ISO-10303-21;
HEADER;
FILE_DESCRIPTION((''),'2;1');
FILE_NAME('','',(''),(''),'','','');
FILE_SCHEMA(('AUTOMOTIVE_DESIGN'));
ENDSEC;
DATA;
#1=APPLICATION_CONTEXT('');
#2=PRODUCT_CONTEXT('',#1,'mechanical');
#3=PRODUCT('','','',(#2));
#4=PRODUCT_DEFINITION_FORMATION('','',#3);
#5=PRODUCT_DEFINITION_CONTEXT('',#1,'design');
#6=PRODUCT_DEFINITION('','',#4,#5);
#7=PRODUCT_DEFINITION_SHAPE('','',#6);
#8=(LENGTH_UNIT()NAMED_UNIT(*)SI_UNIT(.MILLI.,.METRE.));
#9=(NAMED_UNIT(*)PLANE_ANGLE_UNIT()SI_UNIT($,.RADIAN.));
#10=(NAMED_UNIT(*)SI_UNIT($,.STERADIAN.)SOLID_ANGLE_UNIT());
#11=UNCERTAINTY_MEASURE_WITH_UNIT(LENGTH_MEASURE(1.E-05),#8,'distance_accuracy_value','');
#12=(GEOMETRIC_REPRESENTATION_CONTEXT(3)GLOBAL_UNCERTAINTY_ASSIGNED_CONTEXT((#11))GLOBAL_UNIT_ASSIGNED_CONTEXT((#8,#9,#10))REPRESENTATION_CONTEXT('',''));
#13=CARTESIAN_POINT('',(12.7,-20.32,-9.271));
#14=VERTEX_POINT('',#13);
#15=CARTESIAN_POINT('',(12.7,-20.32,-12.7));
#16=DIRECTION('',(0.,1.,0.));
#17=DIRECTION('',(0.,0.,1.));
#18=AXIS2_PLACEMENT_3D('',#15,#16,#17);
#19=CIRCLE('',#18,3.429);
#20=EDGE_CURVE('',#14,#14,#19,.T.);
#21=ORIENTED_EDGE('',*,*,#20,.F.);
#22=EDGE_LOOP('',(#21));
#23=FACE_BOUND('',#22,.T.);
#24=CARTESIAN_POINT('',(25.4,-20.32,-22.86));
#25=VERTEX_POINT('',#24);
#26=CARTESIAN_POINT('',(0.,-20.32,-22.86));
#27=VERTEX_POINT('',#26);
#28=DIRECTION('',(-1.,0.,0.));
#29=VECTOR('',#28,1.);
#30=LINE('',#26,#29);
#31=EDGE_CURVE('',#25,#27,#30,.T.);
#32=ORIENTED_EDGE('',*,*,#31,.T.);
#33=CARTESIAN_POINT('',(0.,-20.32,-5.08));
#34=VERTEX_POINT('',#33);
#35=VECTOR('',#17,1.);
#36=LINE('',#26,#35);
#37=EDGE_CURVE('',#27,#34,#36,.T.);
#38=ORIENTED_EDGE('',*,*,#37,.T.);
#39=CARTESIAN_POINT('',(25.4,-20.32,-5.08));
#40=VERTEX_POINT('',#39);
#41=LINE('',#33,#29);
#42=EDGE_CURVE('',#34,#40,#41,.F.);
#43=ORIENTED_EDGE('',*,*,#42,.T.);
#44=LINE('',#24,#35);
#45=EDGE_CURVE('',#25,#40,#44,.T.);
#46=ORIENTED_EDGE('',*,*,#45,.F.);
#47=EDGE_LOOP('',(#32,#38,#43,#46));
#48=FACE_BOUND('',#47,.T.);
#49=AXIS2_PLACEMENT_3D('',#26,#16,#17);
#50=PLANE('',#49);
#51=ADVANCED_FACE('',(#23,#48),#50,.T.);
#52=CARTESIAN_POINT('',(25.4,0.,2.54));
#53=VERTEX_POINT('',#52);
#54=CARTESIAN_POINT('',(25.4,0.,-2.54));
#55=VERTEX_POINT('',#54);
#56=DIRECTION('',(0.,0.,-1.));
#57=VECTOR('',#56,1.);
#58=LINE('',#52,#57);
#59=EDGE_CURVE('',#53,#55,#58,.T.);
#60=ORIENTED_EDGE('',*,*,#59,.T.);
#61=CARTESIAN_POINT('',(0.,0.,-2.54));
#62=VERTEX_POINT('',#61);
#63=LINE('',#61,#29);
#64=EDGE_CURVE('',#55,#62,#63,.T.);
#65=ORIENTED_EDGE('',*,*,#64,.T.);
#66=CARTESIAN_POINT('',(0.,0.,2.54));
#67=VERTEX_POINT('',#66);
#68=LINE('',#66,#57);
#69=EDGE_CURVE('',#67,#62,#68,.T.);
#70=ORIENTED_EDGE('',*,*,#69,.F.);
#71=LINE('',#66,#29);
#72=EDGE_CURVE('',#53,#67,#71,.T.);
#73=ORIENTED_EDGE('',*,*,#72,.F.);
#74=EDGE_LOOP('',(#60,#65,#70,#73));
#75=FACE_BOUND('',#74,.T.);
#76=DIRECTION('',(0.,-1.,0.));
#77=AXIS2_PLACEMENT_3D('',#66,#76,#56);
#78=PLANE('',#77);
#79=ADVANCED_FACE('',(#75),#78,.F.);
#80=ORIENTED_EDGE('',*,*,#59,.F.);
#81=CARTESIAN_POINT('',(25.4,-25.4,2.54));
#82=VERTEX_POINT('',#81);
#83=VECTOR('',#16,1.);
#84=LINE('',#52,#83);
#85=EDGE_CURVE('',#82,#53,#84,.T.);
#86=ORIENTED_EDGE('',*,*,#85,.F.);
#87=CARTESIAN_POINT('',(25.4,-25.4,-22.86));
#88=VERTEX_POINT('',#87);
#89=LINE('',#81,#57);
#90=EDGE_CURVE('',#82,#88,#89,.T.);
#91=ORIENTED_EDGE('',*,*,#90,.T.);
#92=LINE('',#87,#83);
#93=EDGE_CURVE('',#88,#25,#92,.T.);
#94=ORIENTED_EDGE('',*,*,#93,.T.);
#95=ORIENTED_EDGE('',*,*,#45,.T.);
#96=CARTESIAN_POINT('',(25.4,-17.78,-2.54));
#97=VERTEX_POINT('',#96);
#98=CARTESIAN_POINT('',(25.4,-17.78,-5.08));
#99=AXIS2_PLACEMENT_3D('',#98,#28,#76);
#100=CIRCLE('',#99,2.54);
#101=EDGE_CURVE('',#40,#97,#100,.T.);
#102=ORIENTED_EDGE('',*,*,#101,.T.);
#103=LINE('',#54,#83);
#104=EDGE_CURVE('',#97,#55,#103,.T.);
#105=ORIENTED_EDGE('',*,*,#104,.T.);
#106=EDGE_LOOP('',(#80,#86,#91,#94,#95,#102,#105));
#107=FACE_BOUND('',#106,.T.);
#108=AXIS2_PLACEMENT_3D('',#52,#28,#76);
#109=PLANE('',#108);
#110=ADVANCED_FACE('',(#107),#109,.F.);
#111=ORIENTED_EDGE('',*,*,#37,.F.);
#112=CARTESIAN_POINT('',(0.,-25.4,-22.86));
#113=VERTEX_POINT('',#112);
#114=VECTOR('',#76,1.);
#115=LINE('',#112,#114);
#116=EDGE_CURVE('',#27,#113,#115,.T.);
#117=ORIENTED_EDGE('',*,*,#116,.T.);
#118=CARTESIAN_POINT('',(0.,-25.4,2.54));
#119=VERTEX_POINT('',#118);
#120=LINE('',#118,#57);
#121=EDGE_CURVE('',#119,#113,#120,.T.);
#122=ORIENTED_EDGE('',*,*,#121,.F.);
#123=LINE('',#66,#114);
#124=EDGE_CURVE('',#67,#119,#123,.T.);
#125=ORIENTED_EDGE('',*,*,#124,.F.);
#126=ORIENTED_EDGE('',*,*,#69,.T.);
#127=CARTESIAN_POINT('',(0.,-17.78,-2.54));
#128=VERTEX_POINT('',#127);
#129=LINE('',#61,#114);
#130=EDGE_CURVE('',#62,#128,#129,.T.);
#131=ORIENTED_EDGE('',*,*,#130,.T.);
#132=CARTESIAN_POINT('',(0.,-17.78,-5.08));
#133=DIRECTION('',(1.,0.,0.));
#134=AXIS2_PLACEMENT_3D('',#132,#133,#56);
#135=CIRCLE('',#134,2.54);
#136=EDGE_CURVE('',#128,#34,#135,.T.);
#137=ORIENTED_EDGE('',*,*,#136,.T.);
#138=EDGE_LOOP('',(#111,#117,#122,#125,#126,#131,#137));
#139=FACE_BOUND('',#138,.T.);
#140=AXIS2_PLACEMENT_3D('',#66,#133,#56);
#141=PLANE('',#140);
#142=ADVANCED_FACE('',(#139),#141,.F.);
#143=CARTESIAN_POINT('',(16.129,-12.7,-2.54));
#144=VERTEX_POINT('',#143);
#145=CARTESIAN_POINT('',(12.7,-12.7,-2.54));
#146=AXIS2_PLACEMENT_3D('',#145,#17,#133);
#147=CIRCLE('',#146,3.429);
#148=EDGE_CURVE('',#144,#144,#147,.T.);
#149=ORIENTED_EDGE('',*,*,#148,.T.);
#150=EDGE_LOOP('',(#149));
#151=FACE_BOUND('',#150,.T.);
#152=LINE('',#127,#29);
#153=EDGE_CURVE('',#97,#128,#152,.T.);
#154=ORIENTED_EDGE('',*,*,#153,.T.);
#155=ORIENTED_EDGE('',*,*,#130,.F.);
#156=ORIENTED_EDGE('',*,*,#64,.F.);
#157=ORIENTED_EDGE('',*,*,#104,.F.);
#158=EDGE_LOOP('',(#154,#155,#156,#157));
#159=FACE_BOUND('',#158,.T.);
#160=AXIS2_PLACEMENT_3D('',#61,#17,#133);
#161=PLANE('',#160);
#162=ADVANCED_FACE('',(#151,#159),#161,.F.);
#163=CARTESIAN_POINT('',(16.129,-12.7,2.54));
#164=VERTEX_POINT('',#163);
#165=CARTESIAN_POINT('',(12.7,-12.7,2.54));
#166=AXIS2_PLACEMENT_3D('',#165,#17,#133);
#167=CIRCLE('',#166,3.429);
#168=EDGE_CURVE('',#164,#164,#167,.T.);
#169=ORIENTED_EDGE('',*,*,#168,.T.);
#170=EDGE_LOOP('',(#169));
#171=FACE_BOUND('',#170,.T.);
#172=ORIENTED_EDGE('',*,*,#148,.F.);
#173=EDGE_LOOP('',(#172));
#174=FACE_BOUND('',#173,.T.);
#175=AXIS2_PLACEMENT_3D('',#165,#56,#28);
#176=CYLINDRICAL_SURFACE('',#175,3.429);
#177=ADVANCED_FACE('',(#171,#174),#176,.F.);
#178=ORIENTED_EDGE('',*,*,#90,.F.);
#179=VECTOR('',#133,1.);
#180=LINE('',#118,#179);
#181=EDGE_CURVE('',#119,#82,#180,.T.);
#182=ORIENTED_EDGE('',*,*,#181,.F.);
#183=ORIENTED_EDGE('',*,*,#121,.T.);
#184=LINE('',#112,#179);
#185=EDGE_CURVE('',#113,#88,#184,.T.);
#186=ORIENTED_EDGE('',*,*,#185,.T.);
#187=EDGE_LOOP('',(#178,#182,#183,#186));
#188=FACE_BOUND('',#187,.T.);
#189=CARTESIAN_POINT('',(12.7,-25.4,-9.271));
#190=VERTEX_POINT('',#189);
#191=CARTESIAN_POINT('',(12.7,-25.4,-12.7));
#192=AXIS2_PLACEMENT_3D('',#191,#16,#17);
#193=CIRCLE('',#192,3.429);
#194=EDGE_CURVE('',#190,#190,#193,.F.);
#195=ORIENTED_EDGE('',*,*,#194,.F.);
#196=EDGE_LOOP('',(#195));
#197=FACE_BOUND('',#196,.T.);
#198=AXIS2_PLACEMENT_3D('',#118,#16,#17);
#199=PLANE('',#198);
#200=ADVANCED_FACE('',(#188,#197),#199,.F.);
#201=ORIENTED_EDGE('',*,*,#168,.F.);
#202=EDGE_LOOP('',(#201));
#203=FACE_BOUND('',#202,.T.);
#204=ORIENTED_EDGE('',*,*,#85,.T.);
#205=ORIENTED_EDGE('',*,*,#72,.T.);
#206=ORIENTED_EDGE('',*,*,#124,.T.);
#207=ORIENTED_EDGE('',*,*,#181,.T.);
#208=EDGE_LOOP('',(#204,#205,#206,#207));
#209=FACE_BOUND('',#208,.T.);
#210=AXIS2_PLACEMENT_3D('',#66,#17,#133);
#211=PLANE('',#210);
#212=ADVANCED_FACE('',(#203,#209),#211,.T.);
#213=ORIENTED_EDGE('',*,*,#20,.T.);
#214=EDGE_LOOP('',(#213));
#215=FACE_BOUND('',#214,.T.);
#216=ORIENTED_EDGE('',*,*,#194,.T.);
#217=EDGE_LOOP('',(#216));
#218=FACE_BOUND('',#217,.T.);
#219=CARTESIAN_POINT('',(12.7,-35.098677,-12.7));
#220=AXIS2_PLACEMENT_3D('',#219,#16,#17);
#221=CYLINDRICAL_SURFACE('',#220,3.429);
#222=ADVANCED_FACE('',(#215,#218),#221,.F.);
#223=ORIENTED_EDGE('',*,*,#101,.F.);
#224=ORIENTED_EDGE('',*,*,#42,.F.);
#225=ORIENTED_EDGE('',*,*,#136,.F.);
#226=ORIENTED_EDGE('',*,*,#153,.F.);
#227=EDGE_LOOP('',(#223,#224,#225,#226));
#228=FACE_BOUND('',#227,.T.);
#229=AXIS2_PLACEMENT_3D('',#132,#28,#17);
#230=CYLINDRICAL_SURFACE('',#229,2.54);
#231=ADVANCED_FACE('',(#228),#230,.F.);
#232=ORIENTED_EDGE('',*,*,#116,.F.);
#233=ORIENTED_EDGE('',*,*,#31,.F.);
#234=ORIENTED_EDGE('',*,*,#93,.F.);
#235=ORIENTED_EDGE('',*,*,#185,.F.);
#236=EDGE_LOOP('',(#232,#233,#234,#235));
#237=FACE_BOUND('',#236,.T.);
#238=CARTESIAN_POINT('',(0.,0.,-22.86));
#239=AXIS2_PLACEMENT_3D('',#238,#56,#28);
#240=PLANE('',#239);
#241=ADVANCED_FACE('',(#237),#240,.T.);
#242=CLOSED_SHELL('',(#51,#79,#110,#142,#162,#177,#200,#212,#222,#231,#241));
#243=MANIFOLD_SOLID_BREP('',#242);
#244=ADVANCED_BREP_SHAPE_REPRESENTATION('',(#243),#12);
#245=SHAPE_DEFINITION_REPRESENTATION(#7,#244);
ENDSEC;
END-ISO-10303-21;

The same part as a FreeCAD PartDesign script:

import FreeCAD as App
import Part
import Sketcher
from FreeCAD import Vector
Q = App.Units.Quantity


def edges_at(feature, points):
    """Names of the edges that pass closest to the given points."""
    edges = feature.Shape.Edges
    near = lambda p: min(range(len(edges)), key=lambda i: edges[i].distToShape(Part.Vertex(*p))[0])
    return sorted({f"Edge{near(p) + 1}" for p in points})

doc = App.newDocument("Part")
body = doc.addObject("PartDesign::Body", "Body")

sketch1 = doc.addObject("Sketcher::SketchObject", "Sketch")
body.addObject(sketch1)
sketch1.AttachmentSupport = (doc.XY_Plane, [""])
sketch1.MapMode = "FlatFace"
sketch1.addGeometry(Part.LineSegment(Vector(0, 0, 0), Vector(0, -25.4, 0)), False)
sketch1.addGeometry(Part.LineSegment(Vector(0, -25.4, 0), Vector(25.4, -25.4, 0)), False)
sketch1.addGeometry(Part.LineSegment(Vector(25.4, -25.4, 0), Vector(25.4, 0, 0)), False)
sketch1.addGeometry(Part.LineSegment(Vector(25.4, 0, 0), Vector(0, 0, 0)), False)
sketch1.addGeometry(Part.Circle(Vector(12.7, -12.7, 0), Vector(0, 0, 1), 3.429), False)
sketch1.addConstraint(Sketcher.Constraint("Coincident", 0, 2, 1, 1))
sketch1.addConstraint(Sketcher.Constraint("Coincident", 1, 2, 2, 1))
sketch1.addConstraint(Sketcher.Constraint("Coincident", 2, 2, 3, 1))
sketch1.addConstraint(Sketcher.Constraint("Coincident", 3, 2, 0, 1))
sketch1.addConstraint(Sketcher.Constraint("Vertical", 0))
sketch1.addConstraint(Sketcher.Constraint("Horizontal", 1))
sketch1.addConstraint(Sketcher.Constraint("Vertical", 2))
sketch1.addConstraint(Sketcher.Constraint("Horizontal", 3))
sketch1.addConstraint(Sketcher.Constraint("Coincident", 3, 2, -1, 1))
sketch1.addConstraint(Sketcher.Constraint("Equal", 3, 0))
sketch1.addConstraint(Sketcher.Constraint("Diameter", 4, Q("0.27 in")))
sketch1.addConstraint(Sketcher.Constraint("DistanceX", 1, 1, 1, 2, Q("1 in")))
sketch1.addConstraint(Sketcher.Constraint("DistanceX", -1, 1, 4, 3, Q("0.5 in")))
sketch1.addConstraint(Sketcher.Constraint("DistanceY", 4, 3, -1, 1, Q("0.5 in")))
pad1 = doc.addObject("PartDesign::Pad", "Pad")
body.addObject(pad1)
pad1.Profile = sketch1
pad1.Length = Q("0.2 in")
pad1.Midplane = True

sketch2 = doc.addObject("Sketcher::SketchObject", "Sketch001")
body.addObject(sketch2)
sketch2.AttachmentSupport = (doc.XY_Plane, [""])
sketch2.MapMode = "FlatFace"
sketch2.AttachmentOffset = App.Placement(Vector(0, 0, 0.1 * 25.4), App.Rotation())
sketch2.addGeometry(Part.LineSegment(Vector(0, -20.32, 0), Vector(0, -25.4, 0)), False)
sketch2.addGeometry(Part.LineSegment(Vector(0, -25.4, 0), Vector(25.4, -25.4, 0)), False)
sketch2.addGeometry(Part.LineSegment(Vector(25.4, -25.4, 0), Vector(25.4, -20.32, 0)), False)
sketch2.addGeometry(Part.LineSegment(Vector(25.4, -20.32, 0), Vector(0, -20.32, 0)), False)
sketch2.addConstraint(Sketcher.Constraint("Coincident", 0, 2, 1, 1))
sketch2.addConstraint(Sketcher.Constraint("Coincident", 1, 2, 2, 1))
sketch2.addConstraint(Sketcher.Constraint("Coincident", 2, 2, 3, 1))
sketch2.addConstraint(Sketcher.Constraint("Coincident", 3, 2, 0, 1))
sketch2.addConstraint(Sketcher.Constraint("Vertical", 0))
sketch2.addConstraint(Sketcher.Constraint("Horizontal", 1))
sketch2.addConstraint(Sketcher.Constraint("Vertical", 2))
sketch2.addConstraint(Sketcher.Constraint("Horizontal", 3))
sketch2.addConstraint(Sketcher.Constraint("PointOnObject", 0, 2, -2))
sketch2.addConstraint(Sketcher.Constraint("DistanceX", 1, 1, 1, 2, Q("1 in")))
sketch2.addConstraint(Sketcher.Constraint("DistanceY", 0, 2, 0, 1, Q("0.2 in")))
sketch2.addConstraint(Sketcher.Constraint("DistanceY", 0, 2, -1, 1, Q("1 in")))
pad2 = doc.addObject("PartDesign::Pad", "Pad001")
body.addObject(pad2)
pad2.Profile = sketch2
pad2.Length = Q("1 in")
pad2.Reversed = True

sketch3 = doc.addObject("Sketcher::SketchObject", "Sketch002")
body.addObject(sketch3)
sketch3.AttachmentSupport = (doc.XZ_Plane, [""])
sketch3.MapMode = "FlatFace"
sketch3.AttachmentOffset = App.Placement(Vector(0, 0, 0.8 * 25.4), App.Rotation())
sketch3.addGeometry(Part.Circle(Vector(12.7, -12.7, 0), Vector(0, 0, 1), 3.429), False)
sketch3.addConstraint(Sketcher.Constraint("Diameter", 0, Q("0.27 in")))
sketch3.addConstraint(Sketcher.Constraint("DistanceX", -1, 1, 0, 3, Q("0.5 in")))
sketch3.addConstraint(Sketcher.Constraint("DistanceY", 0, 3, -1, 1, Q("0.5 in")))
pocket1 = doc.addObject("PartDesign::Pocket", "Pocket")
body.addObject(pocket1)
pocket1.Profile = sketch3
pocket1.Length = Q("0.2 in")
pocket1.Reversed = True
doc.recompute()

fillet = doc.addObject("PartDesign::Fillet", "Fillet")
body.addObject(fillet)
fillet.Base = (pocket1, edges_at(pocket1, [(12.7, -20.32, -2.54)]))
fillet.Radius = Q("0.1 in")

doc.recompute()
